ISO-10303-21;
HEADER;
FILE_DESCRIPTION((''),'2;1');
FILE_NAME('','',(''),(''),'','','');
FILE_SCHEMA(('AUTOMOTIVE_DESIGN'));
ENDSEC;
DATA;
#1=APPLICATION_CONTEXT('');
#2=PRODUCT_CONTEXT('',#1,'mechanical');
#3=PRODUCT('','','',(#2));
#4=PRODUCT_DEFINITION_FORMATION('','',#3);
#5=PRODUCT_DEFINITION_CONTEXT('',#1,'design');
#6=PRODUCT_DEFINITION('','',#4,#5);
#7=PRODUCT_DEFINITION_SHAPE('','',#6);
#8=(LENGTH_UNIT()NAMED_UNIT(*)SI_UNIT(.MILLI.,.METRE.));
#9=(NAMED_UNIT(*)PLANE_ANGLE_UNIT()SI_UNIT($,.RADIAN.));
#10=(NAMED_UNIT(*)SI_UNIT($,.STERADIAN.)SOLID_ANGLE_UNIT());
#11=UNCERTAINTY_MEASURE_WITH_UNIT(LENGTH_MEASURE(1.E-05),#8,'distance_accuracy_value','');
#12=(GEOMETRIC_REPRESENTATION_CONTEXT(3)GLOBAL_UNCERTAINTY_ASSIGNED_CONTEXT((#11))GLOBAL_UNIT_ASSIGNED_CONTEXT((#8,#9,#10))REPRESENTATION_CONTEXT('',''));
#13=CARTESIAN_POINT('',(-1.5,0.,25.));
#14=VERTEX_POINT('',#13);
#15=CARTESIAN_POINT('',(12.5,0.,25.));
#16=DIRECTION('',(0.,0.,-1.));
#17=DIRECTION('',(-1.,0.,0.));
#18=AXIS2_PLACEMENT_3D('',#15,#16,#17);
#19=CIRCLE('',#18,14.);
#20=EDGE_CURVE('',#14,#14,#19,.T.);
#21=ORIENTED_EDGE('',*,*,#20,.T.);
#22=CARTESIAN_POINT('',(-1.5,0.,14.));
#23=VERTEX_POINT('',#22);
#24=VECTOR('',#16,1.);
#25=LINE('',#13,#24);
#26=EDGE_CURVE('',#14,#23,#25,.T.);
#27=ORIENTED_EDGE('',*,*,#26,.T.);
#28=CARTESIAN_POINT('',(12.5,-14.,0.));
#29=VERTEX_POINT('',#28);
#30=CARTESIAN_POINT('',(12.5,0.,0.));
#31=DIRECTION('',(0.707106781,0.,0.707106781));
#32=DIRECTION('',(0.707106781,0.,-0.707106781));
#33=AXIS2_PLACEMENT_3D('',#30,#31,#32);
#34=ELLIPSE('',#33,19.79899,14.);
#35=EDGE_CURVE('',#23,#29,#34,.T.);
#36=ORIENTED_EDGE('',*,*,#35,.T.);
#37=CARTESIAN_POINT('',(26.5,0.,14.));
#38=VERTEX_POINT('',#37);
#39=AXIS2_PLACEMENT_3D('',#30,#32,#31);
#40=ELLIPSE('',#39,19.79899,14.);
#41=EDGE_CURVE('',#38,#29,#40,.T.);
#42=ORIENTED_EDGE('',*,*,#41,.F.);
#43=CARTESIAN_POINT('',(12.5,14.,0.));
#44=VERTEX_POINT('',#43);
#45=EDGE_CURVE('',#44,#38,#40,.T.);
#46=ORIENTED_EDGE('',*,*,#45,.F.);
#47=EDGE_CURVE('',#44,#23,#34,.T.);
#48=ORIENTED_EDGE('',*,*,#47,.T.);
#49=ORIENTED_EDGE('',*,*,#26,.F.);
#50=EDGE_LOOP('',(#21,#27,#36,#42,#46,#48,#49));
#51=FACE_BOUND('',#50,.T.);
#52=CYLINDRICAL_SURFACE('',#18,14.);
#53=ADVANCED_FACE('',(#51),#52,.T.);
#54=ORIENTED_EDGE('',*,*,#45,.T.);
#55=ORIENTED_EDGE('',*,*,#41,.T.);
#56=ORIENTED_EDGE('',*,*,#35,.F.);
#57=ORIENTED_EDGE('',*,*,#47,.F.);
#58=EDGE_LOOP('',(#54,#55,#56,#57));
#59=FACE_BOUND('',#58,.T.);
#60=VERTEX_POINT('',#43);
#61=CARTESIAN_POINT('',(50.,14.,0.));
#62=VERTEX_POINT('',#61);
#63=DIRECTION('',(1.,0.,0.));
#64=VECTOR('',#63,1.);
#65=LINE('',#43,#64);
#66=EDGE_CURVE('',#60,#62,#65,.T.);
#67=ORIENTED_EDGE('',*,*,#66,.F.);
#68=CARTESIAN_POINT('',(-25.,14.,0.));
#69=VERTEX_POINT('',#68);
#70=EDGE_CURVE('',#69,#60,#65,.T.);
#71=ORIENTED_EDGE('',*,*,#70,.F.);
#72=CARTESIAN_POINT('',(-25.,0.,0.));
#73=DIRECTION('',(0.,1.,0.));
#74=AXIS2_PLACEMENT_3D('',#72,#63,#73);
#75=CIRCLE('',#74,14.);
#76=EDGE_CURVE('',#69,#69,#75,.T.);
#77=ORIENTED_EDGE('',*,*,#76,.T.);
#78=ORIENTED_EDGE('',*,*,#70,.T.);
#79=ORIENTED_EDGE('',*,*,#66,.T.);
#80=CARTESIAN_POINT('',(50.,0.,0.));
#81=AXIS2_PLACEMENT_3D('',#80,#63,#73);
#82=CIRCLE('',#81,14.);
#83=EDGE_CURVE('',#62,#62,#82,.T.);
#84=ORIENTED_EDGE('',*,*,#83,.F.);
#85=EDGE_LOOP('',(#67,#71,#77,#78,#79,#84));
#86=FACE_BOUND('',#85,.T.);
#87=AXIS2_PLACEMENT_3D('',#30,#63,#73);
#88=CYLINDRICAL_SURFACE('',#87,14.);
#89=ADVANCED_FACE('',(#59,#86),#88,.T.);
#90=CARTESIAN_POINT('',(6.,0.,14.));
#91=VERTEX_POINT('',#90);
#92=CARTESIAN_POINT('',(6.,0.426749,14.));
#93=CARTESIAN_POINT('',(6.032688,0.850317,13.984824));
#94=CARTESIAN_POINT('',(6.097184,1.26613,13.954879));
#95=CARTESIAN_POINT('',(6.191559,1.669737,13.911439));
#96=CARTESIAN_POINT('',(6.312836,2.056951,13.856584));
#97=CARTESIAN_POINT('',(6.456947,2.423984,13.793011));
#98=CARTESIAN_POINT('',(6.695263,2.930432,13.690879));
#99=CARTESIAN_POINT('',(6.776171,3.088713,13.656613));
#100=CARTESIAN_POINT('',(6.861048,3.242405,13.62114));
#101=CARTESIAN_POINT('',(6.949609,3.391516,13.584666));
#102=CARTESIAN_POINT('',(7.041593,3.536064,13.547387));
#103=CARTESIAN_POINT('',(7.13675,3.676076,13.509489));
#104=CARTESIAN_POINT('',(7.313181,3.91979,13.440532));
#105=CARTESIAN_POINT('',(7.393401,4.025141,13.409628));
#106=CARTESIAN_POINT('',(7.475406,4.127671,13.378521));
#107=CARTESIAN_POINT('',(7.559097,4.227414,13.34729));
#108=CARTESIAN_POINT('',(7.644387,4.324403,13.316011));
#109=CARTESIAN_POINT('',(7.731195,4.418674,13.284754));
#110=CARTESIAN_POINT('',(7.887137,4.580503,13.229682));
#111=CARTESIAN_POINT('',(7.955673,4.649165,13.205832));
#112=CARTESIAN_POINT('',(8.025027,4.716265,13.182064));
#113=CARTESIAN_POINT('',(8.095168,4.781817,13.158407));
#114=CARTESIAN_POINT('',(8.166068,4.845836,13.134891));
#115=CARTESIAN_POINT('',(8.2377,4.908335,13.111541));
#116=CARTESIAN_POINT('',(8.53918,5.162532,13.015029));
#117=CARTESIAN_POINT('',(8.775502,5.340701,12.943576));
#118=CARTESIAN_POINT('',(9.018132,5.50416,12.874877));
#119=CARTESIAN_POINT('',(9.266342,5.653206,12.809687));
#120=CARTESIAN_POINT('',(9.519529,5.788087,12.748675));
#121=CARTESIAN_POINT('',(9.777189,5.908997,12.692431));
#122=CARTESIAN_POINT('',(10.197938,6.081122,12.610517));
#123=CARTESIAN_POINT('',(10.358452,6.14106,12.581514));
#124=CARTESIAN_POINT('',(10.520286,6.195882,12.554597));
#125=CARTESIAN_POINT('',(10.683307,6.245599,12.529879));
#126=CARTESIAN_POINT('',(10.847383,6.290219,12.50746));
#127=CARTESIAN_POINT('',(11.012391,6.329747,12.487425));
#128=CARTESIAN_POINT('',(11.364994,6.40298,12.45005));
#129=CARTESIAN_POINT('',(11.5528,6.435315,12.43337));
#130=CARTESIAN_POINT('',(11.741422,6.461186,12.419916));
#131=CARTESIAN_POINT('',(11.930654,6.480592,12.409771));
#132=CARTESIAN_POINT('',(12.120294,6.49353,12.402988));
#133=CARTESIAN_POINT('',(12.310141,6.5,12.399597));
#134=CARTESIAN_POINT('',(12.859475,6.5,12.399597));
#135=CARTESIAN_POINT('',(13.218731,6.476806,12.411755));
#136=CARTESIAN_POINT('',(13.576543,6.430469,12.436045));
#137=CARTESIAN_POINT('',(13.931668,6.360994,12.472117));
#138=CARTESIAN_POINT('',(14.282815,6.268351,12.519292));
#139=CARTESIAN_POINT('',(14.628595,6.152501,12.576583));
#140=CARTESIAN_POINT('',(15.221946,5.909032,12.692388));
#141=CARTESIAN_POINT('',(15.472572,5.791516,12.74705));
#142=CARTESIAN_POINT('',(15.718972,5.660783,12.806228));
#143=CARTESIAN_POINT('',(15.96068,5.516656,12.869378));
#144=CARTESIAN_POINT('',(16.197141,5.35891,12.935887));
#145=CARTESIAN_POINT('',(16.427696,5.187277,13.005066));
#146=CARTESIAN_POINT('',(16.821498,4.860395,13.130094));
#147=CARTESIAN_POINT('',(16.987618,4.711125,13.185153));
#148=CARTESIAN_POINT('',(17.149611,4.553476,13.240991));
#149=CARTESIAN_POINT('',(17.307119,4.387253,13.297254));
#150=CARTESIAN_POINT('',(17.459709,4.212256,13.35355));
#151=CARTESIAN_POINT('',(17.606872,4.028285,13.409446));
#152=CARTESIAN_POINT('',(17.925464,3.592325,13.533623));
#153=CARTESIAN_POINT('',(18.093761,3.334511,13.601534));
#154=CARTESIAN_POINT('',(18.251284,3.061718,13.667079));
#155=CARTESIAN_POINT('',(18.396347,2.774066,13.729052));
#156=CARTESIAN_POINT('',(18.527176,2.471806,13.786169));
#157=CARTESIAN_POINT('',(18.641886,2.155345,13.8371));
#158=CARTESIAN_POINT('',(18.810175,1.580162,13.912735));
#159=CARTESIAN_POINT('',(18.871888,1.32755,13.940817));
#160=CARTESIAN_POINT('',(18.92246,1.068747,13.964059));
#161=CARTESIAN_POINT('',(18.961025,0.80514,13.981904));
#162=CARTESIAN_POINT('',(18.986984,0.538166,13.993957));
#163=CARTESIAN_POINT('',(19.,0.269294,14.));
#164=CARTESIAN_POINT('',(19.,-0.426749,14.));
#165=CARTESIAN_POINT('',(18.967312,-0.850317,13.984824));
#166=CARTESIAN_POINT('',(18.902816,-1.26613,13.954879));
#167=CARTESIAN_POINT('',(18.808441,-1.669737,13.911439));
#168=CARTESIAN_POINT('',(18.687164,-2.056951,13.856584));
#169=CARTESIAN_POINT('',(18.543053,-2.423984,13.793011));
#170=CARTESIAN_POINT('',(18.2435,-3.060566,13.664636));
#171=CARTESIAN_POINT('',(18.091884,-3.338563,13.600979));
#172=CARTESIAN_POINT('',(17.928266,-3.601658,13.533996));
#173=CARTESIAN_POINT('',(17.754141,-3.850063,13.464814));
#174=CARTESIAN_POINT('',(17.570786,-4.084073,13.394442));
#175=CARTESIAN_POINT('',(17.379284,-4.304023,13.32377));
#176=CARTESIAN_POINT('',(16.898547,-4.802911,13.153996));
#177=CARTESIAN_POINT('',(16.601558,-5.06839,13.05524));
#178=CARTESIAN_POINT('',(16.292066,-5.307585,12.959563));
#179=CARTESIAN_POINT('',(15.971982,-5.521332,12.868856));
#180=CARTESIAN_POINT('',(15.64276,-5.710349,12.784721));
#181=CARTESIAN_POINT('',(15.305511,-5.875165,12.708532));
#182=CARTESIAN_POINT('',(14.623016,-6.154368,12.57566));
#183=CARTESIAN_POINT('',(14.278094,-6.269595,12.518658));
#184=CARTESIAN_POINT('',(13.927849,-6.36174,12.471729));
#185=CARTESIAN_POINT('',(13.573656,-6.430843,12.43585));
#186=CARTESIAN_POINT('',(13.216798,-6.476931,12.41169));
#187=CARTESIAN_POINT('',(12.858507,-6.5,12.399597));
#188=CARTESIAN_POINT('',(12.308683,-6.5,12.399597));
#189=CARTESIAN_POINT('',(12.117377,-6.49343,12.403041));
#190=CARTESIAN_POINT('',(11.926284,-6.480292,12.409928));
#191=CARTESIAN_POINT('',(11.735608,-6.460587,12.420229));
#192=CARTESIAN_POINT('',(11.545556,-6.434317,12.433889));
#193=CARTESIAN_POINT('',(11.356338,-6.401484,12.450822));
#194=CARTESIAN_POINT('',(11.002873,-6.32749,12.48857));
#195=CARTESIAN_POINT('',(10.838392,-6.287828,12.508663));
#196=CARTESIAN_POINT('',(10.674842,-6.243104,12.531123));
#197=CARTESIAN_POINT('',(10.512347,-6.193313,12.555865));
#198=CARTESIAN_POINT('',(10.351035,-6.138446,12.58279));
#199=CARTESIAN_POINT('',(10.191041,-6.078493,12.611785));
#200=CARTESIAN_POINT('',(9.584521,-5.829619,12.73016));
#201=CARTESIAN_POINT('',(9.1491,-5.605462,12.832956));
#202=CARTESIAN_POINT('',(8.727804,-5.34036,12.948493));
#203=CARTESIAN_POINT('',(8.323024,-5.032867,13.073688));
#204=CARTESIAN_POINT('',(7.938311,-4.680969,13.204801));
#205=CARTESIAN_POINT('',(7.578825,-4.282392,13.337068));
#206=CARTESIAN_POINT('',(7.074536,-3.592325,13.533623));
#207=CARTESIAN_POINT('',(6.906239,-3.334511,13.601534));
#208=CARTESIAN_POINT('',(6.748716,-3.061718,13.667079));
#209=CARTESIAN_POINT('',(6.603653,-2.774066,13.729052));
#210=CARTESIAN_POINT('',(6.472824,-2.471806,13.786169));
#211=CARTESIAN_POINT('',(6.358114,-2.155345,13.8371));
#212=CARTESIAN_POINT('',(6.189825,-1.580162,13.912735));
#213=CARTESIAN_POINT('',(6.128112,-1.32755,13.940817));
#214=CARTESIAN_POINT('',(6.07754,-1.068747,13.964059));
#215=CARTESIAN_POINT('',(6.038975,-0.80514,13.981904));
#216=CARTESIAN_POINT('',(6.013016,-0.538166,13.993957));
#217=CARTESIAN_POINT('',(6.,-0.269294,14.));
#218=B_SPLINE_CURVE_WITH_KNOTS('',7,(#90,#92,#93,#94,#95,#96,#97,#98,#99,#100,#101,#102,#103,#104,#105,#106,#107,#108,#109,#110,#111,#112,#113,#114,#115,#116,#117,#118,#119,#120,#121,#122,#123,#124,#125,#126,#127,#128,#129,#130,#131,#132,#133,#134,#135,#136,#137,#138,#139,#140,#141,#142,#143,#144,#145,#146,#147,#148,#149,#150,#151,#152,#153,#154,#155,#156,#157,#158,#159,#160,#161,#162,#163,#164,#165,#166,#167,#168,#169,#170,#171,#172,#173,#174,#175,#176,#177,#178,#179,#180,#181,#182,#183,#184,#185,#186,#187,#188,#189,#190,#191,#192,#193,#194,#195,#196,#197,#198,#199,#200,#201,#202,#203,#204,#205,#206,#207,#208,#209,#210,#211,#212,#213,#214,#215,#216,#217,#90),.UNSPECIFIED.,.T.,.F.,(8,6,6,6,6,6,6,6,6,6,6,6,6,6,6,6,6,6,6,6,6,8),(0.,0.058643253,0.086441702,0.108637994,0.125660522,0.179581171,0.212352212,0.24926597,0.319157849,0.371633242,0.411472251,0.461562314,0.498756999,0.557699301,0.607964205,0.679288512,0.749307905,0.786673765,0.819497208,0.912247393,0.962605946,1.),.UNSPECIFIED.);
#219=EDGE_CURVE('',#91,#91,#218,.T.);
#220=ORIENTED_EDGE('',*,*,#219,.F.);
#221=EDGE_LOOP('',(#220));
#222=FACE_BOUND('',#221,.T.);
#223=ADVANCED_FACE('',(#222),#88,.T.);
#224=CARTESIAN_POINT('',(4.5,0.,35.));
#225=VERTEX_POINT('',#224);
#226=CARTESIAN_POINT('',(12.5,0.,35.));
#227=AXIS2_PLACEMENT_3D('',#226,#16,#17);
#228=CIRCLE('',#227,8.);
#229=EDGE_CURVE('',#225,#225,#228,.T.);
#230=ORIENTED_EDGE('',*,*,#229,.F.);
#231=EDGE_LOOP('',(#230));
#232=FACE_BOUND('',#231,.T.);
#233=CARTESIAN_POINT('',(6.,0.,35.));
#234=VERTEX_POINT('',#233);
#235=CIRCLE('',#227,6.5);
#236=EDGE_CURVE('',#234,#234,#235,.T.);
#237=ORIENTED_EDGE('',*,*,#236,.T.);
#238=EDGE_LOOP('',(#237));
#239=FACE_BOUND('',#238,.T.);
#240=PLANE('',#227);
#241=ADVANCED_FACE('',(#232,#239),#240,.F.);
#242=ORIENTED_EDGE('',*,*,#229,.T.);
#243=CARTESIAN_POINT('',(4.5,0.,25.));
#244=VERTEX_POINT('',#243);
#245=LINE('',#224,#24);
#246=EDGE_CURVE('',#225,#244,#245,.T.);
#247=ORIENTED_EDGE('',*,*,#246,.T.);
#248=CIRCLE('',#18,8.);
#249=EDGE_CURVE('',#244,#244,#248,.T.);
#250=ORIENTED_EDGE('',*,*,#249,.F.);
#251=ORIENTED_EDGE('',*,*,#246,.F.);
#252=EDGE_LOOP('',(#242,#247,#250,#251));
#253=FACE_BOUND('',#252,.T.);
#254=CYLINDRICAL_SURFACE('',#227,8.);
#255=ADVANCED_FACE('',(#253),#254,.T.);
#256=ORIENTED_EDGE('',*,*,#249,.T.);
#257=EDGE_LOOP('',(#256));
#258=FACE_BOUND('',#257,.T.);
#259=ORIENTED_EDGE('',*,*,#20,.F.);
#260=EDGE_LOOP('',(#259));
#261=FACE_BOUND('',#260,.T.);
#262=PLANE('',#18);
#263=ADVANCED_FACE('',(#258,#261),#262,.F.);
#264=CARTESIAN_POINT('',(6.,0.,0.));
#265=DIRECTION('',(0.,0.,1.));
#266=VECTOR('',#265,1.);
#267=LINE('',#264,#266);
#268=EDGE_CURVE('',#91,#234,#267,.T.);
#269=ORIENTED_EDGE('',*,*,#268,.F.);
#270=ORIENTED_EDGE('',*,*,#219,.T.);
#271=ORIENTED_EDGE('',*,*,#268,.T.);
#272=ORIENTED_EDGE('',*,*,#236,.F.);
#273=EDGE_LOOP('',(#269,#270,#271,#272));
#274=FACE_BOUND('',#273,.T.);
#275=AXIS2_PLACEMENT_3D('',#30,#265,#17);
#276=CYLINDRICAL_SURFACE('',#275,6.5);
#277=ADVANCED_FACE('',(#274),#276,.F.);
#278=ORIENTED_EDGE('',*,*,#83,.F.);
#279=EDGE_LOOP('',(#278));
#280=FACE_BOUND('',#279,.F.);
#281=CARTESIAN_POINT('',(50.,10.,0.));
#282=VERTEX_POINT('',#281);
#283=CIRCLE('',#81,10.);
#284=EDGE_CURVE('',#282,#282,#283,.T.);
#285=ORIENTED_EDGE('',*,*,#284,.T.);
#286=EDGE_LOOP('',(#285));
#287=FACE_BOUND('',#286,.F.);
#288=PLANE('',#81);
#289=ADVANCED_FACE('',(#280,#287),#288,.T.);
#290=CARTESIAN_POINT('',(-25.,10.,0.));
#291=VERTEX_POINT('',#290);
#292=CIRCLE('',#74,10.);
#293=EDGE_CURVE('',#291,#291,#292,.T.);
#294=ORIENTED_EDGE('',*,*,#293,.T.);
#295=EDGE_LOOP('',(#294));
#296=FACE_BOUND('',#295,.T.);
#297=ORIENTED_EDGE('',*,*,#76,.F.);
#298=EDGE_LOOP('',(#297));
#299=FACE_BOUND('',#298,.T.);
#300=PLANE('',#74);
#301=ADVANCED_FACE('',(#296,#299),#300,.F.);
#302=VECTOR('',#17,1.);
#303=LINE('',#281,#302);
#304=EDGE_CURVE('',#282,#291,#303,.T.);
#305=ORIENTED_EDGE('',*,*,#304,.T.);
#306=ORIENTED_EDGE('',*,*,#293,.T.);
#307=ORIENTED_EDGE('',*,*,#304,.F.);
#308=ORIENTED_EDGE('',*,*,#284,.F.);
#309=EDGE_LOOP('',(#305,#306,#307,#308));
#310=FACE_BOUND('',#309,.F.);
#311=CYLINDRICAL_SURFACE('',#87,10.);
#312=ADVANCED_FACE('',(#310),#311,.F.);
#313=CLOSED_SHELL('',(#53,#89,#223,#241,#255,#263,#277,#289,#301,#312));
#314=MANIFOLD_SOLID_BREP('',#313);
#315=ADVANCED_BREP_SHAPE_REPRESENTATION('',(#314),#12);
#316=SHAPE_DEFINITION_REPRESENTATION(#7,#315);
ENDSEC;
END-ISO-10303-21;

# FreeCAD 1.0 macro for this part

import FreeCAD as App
import Part
import Sketcher

V = App.Vector

doc = App.newDocument("Part")
body = doc.addObject("PartDesign::Body", "Body")

# Sketch on XY plane
sketch1 = body.newObject("Sketcher::SketchObject", "Sketch")
sketch1.AttachmentSupport = (doc.getObject("XY_Plane"), [""])
sketch1.MapMode = "FlatFace"
sketch1.addGeometry([
    Part.LineSegment(V(-25, 14, 0), V(-25, 10, 0)),
    Part.LineSegment(V(-25, 10, 0), V(50, 10, 0)),
    Part.LineSegment(V(50, 10, 0), V(50, 14, 0)),
    Part.LineSegment(V(50, 14, 0), V(-25, 14, 0)),
], False)
sketch1.addConstraint([
    Sketcher.Constraint("Coincident", 0, 2, 1, 1),
    Sketcher.Constraint("Coincident", 1, 2, 2, 1),
    Sketcher.Constraint("Coincident", 2, 2, 3, 1),
    Sketcher.Constraint("Coincident", 3, 2, 0, 1),
    Sketcher.Constraint("Vertical", 0),
    Sketcher.Constraint("Horizontal", 1),
    Sketcher.Constraint("Vertical", 2),
    Sketcher.Constraint("Horizontal", 3),
    Sketcher.Constraint("DistanceX", 1, 1, 1, 2, 75.0),
    Sketcher.Constraint("DistanceY", 0, 2, 0, 1, 4.0),
    Sketcher.Constraint("DistanceX", 0, 2, -1, 1, 25.0),
    Sketcher.Constraint("DistanceY", -1, 1, 0, 2, 10.0),
])
revolution = body.newObject("PartDesign::Revolution", "Revolution")
revolution.Profile = sketch1
revolution.ReferenceAxis = (sketch1, ["H_Axis"])
revolution.Angle = 360

# Sketch on XZ plane
sketch2 = body.newObject("Sketcher::SketchObject", "Sketch001")
sketch2.AttachmentSupport = (doc.getObject("XZ_Plane"), [""])
sketch2.MapMode = "FlatFace"
sketch2.addGeometry([
    Part.LineSegment(V(-1.5, 25, 0), V(-1.5, 0, 0)),  # 0
    Part.LineSegment(V(-1.5, 0, 0), V(6, 0, 0)),  # 1
    Part.LineSegment(V(6, 0, 0), V(6, 35, 0)),  # 2
    Part.LineSegment(V(6, 35, 0), V(4.5, 35, 0)),  # 3
    Part.LineSegment(V(4.5, 35, 0), V(4.5, 25, 0)),  # 4
    Part.LineSegment(V(4.5, 25, 0), V(-1.5, 25, 0)),  # 5
], False)
sketch2.addGeometry(Part.LineSegment(V(12.5, 35, 0), V(12.5, 0, 0)), True)  # axis
sketch2.addConstraint([
    Sketcher.Constraint("Coincident", 0, 2, 1, 1),
    Sketcher.Constraint("Coincident", 1, 2, 2, 1),
    Sketcher.Constraint("Coincident", 2, 2, 3, 1),
    Sketcher.Constraint("Coincident", 3, 2, 4, 1),
    Sketcher.Constraint("Coincident", 4, 2, 5, 1),
    Sketcher.Constraint("Coincident", 5, 2, 0, 1),
    Sketcher.Constraint("Vertical", 0),
    Sketcher.Constraint("Horizontal", 1),
    Sketcher.Constraint("Vertical", 2),
    Sketcher.Constraint("Horizontal", 3),
    Sketcher.Constraint("Vertical", 4),
    Sketcher.Constraint("Horizontal", 5),
    Sketcher.Constraint("Vertical", 6),
    Sketcher.Constraint("PointOnObject", 0, 2, -1),
    Sketcher.Constraint("PointOnObject", 6, 2, -1),
    Sketcher.Constraint("Horizontal", 3, 2, 6, 1),
    Sketcher.Constraint("DistanceX", 5, 2, 5, 1, 6.0),
    Sketcher.Constraint("DistanceY", 0, 2, 0, 1, 25.0),
    Sketcher.Constraint("DistanceY", 2, 1, 2, 2, 35.0),
    Sketcher.Constraint("DistanceX", 1, 1, 1, 2, 7.5),
    Sketcher.Constraint("DistanceX", -1, 1, 1, 2, 6.0),
    Sketcher.Constraint("DistanceX", 3, 2, 6, 1, 8.0),
])
revolution2 = body.newObject("PartDesign::Revolution", "Revolution001")
revolution2.Profile = sketch2
revolution2.ReferenceAxis = (sketch2, ["Axis0"])
revolution2.Angle = 360

# Sketch on YZ plane
sketch3 = body.newObject("Sketcher::SketchObject", "Sketch002")
sketch3.AttachmentSupport = (doc.getObject("YZ_Plane"), [""])
sketch3.MapMode = "FlatFace"
sketch3.AttachmentOffset = App.Placement(V(0, 0, 50), App.Rotation())
sketch3.addGeometry(Part.Circle(V(0, 0, 0), V(0, 0, 1), 10), False)
sketch3.addConstraint([
    Sketcher.Constraint("Coincident", 0, 3, -1, 1),
    Sketcher.Constraint("Diameter", 0, 20.0),
])
pocket1 = body.newObject("PartDesign::Pocket", "Pocket")
pocket1.Profile = sketch3
pocket1.Type = "ThroughAll"

doc.recompute()
